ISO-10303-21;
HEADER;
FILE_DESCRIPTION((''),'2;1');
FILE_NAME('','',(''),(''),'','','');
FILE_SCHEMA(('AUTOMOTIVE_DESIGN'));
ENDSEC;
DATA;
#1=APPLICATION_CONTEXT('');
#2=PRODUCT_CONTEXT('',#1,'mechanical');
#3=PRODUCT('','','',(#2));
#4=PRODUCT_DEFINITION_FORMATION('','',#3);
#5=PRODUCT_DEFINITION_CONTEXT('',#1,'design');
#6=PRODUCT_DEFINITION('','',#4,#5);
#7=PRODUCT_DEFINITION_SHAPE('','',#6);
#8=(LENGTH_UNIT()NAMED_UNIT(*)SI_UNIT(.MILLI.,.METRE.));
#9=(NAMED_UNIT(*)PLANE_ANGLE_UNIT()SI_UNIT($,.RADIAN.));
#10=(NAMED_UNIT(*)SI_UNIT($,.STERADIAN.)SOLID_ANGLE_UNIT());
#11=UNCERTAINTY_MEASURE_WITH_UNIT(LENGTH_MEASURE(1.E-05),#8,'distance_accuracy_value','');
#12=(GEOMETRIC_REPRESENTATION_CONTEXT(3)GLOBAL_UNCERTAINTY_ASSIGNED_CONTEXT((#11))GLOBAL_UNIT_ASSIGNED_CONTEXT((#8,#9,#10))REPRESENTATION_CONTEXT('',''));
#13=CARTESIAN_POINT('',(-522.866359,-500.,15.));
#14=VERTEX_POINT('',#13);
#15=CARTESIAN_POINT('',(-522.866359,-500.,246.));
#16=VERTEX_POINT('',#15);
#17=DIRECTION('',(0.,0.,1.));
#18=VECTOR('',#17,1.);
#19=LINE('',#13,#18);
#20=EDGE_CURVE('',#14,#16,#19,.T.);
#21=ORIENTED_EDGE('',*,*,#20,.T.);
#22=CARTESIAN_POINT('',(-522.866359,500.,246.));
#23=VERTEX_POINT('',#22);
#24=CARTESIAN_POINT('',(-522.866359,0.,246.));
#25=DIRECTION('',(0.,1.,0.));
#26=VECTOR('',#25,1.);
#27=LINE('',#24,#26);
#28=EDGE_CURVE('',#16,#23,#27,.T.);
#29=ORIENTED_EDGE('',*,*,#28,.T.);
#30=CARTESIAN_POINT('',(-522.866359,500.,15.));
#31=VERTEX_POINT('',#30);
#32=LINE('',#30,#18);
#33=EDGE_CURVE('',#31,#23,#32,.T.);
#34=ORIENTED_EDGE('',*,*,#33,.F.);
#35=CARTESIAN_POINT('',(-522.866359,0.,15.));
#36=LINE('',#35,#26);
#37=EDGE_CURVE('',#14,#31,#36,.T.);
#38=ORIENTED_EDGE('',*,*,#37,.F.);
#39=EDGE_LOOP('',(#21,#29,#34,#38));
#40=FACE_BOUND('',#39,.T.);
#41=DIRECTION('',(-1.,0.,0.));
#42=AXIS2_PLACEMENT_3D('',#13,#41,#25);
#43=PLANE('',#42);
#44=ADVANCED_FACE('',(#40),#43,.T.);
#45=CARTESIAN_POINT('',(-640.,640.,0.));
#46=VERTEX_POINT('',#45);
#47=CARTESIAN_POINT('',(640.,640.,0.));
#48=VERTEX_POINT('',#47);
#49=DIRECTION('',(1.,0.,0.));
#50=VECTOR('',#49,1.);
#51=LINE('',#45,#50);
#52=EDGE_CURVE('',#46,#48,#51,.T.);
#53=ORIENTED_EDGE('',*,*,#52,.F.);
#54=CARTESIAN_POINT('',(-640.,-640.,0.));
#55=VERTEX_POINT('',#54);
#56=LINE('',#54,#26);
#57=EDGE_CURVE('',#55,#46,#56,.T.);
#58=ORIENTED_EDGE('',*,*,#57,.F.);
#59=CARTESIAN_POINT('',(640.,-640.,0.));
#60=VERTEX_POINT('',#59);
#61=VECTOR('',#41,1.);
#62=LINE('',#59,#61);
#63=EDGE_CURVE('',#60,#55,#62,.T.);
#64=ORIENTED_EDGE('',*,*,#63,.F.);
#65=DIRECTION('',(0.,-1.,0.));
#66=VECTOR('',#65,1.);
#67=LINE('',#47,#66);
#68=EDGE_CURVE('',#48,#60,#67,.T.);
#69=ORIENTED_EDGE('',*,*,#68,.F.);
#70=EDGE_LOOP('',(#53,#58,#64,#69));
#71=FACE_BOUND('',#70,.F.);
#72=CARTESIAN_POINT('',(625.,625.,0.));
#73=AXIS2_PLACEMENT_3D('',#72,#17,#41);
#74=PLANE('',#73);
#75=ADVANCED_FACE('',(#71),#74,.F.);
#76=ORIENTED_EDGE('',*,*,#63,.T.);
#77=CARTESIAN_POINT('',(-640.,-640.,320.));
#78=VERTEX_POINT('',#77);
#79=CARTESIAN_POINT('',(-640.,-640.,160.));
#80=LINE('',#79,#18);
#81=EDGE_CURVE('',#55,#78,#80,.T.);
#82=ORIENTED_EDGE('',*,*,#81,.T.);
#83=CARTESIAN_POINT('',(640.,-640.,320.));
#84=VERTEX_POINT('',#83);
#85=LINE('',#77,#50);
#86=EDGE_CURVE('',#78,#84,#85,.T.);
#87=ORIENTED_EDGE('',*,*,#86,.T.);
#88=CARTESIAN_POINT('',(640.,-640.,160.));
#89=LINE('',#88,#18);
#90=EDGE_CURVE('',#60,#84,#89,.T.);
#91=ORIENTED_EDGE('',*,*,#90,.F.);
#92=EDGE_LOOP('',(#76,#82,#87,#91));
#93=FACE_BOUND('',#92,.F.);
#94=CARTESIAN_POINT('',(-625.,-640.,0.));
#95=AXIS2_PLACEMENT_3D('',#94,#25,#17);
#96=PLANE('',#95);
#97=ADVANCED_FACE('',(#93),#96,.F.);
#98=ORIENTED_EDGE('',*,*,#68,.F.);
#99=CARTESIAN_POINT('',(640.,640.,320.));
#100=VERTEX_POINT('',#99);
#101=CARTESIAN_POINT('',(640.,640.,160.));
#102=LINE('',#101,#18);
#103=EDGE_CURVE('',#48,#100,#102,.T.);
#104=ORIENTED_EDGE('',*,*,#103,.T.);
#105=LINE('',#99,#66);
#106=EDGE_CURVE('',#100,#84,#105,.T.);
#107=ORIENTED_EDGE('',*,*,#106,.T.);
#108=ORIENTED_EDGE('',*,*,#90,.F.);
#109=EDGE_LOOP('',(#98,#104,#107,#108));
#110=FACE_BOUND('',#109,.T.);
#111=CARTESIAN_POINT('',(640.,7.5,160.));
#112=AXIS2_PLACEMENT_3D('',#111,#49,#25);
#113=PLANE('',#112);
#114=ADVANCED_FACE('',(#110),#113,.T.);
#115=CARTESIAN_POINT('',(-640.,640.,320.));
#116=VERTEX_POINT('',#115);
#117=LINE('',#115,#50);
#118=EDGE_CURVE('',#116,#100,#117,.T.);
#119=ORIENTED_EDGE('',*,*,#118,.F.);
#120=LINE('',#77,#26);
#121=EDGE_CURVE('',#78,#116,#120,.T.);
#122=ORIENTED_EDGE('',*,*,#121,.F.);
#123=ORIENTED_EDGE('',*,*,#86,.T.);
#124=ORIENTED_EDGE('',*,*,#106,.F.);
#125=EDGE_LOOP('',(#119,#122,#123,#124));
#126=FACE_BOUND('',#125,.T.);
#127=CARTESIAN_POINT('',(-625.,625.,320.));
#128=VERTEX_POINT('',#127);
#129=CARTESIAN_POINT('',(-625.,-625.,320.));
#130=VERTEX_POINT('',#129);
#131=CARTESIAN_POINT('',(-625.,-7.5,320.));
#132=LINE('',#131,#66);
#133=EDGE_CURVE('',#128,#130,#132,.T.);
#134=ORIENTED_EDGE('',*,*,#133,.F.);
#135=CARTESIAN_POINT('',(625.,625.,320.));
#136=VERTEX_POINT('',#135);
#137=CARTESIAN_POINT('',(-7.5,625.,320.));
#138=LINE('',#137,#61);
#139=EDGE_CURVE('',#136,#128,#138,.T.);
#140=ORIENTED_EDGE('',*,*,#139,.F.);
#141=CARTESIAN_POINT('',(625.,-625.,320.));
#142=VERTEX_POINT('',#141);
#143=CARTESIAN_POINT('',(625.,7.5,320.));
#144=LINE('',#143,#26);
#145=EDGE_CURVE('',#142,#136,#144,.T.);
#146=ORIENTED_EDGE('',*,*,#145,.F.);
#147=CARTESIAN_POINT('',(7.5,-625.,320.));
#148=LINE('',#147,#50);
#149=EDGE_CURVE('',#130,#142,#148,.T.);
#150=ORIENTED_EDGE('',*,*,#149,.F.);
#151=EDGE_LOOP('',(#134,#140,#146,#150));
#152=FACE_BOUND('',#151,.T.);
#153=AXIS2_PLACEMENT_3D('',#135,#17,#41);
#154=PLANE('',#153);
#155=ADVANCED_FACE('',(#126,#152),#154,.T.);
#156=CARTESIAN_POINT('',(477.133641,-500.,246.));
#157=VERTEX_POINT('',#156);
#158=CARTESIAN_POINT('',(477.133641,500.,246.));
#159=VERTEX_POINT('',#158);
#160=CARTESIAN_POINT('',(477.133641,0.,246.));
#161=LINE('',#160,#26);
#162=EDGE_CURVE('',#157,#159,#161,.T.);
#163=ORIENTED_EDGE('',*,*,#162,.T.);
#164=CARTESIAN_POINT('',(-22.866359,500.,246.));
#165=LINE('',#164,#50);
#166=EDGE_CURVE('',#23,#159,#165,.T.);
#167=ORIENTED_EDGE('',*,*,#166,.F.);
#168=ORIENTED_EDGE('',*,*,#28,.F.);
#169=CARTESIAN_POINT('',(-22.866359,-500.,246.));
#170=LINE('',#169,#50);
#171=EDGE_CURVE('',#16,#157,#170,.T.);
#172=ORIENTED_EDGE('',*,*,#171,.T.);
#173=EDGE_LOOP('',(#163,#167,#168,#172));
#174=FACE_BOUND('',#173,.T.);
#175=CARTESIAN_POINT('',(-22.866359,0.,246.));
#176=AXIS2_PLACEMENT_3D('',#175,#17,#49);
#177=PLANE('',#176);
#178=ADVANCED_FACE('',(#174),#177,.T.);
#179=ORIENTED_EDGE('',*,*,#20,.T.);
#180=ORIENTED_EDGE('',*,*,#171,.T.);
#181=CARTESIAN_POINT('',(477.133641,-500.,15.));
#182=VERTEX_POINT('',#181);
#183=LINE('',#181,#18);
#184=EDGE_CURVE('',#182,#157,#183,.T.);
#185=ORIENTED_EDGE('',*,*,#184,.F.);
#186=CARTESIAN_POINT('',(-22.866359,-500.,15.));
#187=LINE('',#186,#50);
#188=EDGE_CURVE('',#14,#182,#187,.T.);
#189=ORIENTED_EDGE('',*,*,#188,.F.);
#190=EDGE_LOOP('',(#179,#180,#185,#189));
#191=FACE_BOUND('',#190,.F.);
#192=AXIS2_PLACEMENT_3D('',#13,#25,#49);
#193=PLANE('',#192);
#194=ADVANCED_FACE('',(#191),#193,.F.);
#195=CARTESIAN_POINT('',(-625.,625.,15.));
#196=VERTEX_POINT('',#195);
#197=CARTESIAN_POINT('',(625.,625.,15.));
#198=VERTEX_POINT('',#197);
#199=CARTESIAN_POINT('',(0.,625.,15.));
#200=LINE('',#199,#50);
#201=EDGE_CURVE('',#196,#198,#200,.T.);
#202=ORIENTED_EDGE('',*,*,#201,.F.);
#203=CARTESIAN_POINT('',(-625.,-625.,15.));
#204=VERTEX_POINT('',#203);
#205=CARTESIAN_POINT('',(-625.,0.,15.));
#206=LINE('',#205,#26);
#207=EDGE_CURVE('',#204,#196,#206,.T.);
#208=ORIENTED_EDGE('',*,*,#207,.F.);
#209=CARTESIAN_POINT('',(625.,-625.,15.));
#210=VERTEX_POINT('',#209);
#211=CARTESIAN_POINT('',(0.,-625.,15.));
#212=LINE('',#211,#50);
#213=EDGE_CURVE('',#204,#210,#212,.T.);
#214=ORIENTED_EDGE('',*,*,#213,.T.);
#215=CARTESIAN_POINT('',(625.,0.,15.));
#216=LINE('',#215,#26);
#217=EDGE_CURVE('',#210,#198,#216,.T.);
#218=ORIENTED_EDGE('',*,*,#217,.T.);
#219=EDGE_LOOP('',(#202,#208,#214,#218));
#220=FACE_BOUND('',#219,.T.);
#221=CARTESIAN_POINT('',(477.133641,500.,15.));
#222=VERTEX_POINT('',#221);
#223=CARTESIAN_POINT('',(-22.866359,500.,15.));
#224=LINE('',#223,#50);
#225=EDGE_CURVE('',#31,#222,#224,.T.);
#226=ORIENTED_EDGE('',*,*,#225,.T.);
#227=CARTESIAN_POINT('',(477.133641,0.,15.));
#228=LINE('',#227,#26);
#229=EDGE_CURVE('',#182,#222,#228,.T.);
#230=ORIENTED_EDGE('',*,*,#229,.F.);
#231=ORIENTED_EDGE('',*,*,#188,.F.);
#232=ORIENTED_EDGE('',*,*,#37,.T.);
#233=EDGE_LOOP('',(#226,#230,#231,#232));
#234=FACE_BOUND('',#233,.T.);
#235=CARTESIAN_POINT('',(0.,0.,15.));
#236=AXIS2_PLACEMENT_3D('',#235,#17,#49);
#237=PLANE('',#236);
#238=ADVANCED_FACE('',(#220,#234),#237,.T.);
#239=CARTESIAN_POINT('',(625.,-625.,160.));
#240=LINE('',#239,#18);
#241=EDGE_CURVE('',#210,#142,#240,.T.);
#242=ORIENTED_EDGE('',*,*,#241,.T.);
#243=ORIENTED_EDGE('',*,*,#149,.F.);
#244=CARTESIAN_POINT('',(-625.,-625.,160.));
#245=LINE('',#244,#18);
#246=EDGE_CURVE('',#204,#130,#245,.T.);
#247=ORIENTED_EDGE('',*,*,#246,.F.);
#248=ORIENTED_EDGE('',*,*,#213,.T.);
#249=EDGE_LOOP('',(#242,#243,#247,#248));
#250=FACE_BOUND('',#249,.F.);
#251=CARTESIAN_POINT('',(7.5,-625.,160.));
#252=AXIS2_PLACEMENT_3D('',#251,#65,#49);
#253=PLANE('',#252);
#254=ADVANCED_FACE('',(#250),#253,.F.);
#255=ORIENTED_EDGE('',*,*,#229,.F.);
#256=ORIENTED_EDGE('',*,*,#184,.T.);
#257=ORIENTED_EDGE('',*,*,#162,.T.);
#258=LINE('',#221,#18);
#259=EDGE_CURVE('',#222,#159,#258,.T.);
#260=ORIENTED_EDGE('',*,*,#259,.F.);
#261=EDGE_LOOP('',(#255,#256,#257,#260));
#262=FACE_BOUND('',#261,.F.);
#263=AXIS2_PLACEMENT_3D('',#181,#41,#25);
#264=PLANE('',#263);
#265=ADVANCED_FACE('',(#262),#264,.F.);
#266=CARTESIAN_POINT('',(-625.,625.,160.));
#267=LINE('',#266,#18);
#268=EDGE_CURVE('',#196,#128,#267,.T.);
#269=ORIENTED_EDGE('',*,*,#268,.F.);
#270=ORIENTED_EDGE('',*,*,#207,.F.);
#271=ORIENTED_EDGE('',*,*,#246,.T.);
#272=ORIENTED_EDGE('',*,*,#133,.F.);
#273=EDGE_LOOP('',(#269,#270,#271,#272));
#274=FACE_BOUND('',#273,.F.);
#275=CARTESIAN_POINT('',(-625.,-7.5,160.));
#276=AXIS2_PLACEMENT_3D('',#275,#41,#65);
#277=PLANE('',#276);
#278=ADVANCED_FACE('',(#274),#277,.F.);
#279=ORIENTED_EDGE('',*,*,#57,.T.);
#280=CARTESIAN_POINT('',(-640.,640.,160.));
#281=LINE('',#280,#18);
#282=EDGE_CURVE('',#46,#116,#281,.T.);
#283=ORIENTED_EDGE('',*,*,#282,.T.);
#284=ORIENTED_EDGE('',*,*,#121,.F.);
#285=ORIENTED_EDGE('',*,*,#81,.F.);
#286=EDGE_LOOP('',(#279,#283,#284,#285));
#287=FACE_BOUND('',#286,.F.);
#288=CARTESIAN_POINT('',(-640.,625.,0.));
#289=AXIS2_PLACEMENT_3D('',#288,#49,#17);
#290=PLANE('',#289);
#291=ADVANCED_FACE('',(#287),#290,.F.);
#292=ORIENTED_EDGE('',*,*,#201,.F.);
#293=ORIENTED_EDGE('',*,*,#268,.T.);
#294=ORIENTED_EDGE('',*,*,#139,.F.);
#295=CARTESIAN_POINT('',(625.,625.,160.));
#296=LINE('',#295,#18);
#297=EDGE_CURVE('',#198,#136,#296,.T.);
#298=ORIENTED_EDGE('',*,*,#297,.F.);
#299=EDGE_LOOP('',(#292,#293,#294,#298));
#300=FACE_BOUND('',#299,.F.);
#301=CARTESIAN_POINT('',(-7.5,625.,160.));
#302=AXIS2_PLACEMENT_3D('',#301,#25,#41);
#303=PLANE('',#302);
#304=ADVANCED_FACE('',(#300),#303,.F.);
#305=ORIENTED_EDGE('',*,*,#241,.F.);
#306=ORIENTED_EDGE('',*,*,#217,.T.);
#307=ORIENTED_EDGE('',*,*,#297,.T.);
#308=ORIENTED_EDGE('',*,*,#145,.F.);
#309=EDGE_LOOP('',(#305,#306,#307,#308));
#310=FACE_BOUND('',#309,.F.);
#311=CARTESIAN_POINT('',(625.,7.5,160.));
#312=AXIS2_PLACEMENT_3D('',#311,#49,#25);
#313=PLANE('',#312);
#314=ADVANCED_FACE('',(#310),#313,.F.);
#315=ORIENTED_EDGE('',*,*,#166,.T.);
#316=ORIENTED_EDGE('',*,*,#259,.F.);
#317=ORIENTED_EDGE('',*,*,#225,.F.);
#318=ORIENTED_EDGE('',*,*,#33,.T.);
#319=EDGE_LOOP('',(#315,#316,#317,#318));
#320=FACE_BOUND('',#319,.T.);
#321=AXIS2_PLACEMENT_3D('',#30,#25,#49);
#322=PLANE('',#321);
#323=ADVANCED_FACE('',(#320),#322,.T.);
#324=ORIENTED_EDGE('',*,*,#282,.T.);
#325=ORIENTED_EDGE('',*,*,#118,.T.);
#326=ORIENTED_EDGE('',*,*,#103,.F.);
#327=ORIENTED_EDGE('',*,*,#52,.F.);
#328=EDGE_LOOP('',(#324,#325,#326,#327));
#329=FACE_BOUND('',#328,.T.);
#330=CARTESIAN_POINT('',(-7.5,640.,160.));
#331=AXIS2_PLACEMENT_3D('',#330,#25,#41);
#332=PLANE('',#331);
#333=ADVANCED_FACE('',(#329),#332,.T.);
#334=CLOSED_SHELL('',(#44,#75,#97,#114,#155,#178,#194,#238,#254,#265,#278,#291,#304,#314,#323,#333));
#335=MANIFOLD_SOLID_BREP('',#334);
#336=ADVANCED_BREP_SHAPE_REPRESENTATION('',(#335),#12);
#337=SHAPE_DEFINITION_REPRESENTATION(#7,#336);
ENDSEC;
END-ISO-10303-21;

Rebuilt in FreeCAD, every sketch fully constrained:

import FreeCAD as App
import Part
import Sketcher
from FreeCAD import Vector
Q = App.Units.Quantity


def add_polygon(sketch, points):
    """Adds a closed chain of lines whose ends are joined by coincident constraints."""
    first, n = sketch.GeometryCount, len(points)
    for a, b in zip(points, points[1:] + points[:1]):
        sketch.addGeometry(Part.LineSegment(App.Vector(*a, 0), App.Vector(*b, 0)), False)
    for i in range(n):
        sketch.addConstraint(Sketcher.Constraint("Coincident", first + i, 2, first + (i + 1) % n, 1))

doc = App.newDocument("Part")
params = doc.addObject("Spreadsheet::Sheet", "Params")
for row, (alias, value) in enumerate([
    ("sketch1_width", "1250 mm"),
    ("pad1_length", "15 mm"),
    ("sketch2_width", "1265 mm"),
    ("sketch2_height", "320 mm"),
    ("pad2_length", "15 mm"),
    ("sketch3_width", "1265 mm"),
    ("sketch3_height", "320 mm"),
    ("pad3_length", "15 mm"),
    ("sketch4_width", "1265 mm"),
    ("sketch4_height", "320 mm"),
    ("pad4_length", "15 mm"),
    ("sketch5_width", "1265 mm"),
    ("sketch5_height", "320 mm"),
    ("pad5_length", "15 mm"),
    ("sketch6_width", "1000 mm"),
    ("pad6_length", "231 mm"),
], start=1):
    params.set(f"A{row}", alias)
    params.set(f"B{row}", "=" + value)
    params.setAlias(f"B{row}", alias)

body = doc.addObject("PartDesign::Body", "Body")

sketch1 = body.newObject("Sketcher::SketchObject", "Sketch")
sketch1.AttachmentSupport = (doc.getObject("XY_Plane"), [""])
sketch1.MapMode = "FlatFace"
add_polygon(sketch1, [(-625, 625), (-625, -625), (625, -625), (625, 625)])
sketch1.addConstraint([
    Sketcher.Constraint("Vertical", 0),
    Sketcher.Constraint("Horizontal", 1),
    Sketcher.Constraint("Vertical", 2),
    Sketcher.Constraint("Horizontal", 3),
    Sketcher.Constraint("Symmetric", 0, 2, 2, 2, -1, 1),
    Sketcher.Constraint("Equal", 3, 0),
    Sketcher.Constraint("DistanceX", 1, 1, 1, 2, Q("1250 mm")),
])
sketch1.setExpression("Constraints[10]", "Params.sketch1_width")
pad1 = body.newObject("PartDesign::Pad", "Pad")
pad1.Profile = sketch1
pad1.setExpression("Length", "Params.pad1_length")

sketch2 = body.newObject("Sketcher::SketchObject", "Sketch001")
sketch2.AttachmentSupport = (doc.getObject("XZ_Plane"), [""])
sketch2.MapMode = "FlatFace"
sketch2.AttachmentOffset = App.Placement(Vector(0, 0, 625), App.Rotation())
add_polygon(sketch2, [(-625, 320), (-625, 0), (640, 0), (640, 320)])
sketch2.addConstraint([
    Sketcher.Constraint("Vertical", 0),
    Sketcher.Constraint("Horizontal", 1),
    Sketcher.Constraint("Vertical", 2),
    Sketcher.Constraint("Horizontal", 3),
    Sketcher.Constraint("PointOnObject", 0, 2, -1),
    Sketcher.Constraint("DistanceX", 1, 1, 1, 2, Q("1265 mm")),
    Sketcher.Constraint("DistanceY", 0, 2, 0, 1, Q("320 mm")),
    Sketcher.Constraint("DistanceX", 0, 2, -1, 1, Q("625 mm")),
])
sketch2.setExpression("Constraints[9]", "Params.sketch2_width")
sketch2.setExpression("Constraints[10]", "Params.sketch2_height")
pad2 = body.newObject("PartDesign::Pad", "Pad001")
pad2.Profile = sketch2
pad2.setExpression("Length", "Params.pad2_length")

sketch3 = body.newObject("Sketcher::SketchObject", "Sketch002")
sketch3.AttachmentSupport = (doc.getObject("YZ_Plane"), [""])
sketch3.MapMode = "FlatFace"
sketch3.AttachmentOffset = App.Placement(Vector(0, 0, 625), App.Rotation())
add_polygon(sketch3, [(-625, 320), (-625, 0), (640, 0), (640, 320)])
sketch3.addConstraint([
    Sketcher.Constraint("Vertical", 0),
    Sketcher.Constraint("Horizontal", 1),
    Sketcher.Constraint("Vertical", 2),
    Sketcher.Constraint("Horizontal", 3),
    Sketcher.Constraint("PointOnObject", 0, 2, -1),
    Sketcher.Constraint("DistanceX", 1, 1, 1, 2, Q("1265 mm")),
    Sketcher.Constraint("DistanceY", 0, 2, 0, 1, Q("320 mm")),
    Sketcher.Constraint("DistanceX", 0, 2, -1, 1, Q("625 mm")),
])
sketch3.setExpression("Constraints[9]", "Params.sketch3_width")
sketch3.setExpression("Constraints[10]", "Params.sketch3_height")
pad3 = body.newObject("PartDesign::Pad", "Pad002")
pad3.Profile = sketch3
pad3.setExpression("Length", "Params.pad3_length")

sketch4 = body.newObject("Sketcher::SketchObject", "Sketch003")
sketch4.AttachmentSupport = (doc.getObject("YZ_Plane"), [""])
sketch4.MapMode = "FlatFace"
sketch4.AttachmentOffset = App.Placement(Vector(0, 0, -625), App.Rotation())
add_polygon(sketch4, [(625, 320), (625, 0), (-640, 0), (-640, 320)])
sketch4.addConstraint([
    Sketcher.Constraint("Vertical", 0),
    Sketcher.Constraint("Horizontal", 1),
    Sketcher.Constraint("Vertical", 2),
    Sketcher.Constraint("Horizontal", 3),
    Sketcher.Constraint("PointOnObject", 0, 2, -1),
    Sketcher.Constraint("DistanceX", 1, 2, 1, 1, Q("1265 mm")),
    Sketcher.Constraint("DistanceY", 0, 2, 0, 1, Q("320 mm")),
    Sketcher.Constraint("DistanceX", -1, 1, 0, 2, Q("625 mm")),
])
sketch4.setExpression("Constraints[9]", "Params.sketch4_width")
sketch4.setExpression("Constraints[10]", "Params.sketch4_height")
pad4 = body.newObject("PartDesign::Pad", "Pad003")
pad4.Profile = sketch4
pad4.setExpression("Length", "Params.pad4_length")
pad4.Reversed = True

sketch5 = body.newObject("Sketcher::SketchObject", "Sketch004")
sketch5.AttachmentSupport = (doc.getObject("XZ_Plane"), [""])
sketch5.MapMode = "FlatFace"
sketch5.AttachmentOffset = App.Placement(Vector(0, 0, -625), App.Rotation())
add_polygon(sketch5, [(625, 320), (625, 0), (-640, 0), (-640, 320)])
sketch5.addConstraint([
    Sketcher.Constraint("Vertical", 0),
    Sketcher.Constraint("Horizontal", 1),
    Sketcher.Constraint("Vertical", 2),
    Sketcher.Constraint("Horizontal", 3),
    Sketcher.Constraint("PointOnObject", 0, 2, -1),
    Sketcher.Constraint("DistanceX", 1, 2, 1, 1, Q("1265 mm")),
    Sketcher.Constraint("DistanceY", 0, 2, 0, 1, Q("320 mm")),
    Sketcher.Constraint("DistanceX", -1, 1, 0, 2, Q("625 mm")),
])
sketch5.setExpression("Constraints[9]", "Params.sketch5_width")
sketch5.setExpression("Constraints[10]", "Params.sketch5_height")
pad5 = body.newObject("PartDesign::Pad", "Pad004")
pad5.Profile = sketch5
pad5.setExpression("Length", "Params.pad5_length")
pad5.Reversed = True

sketch6 = body.newObject("Sketcher::SketchObject", "Sketch005")
sketch6.AttachmentSupport = (doc.getObject("XY_Plane"), [""])
sketch6.MapMode = "FlatFace"
sketch6.AttachmentOffset = App.Placement(Vector(0, 0, 15), App.Rotation())
add_polygon(sketch6, [(-523, 500), (-523, -500), (477, -500), (477, 500)])
sketch6.addConstraint([
    Sketcher.Constraint("Vertical", 0),
    Sketcher.Constraint("Horizontal", 1),
    Sketcher.Constraint("Vertical", 2),
    Sketcher.Constraint("Horizontal", 3),
    Sketcher.Constraint("Equal", 3, 0),
    Sketcher.Constraint("DistanceX", 1, 1, 1, 2, Q("1000 mm")),
    Sketcher.Constraint("DistanceY", 0, 2, -1, 1, Q("500 mm")),
    Sketcher.Constraint("DistanceX", 0, 2, -1, 1, Q("522.866359 mm")),
])
sketch6.setExpression("Constraints[9]", "Params.sketch6_width")
pad6 = body.newObject("PartDesign::Pad", "Pad005")
pad6.Profile = sketch6
pad6.setExpression("Length", "Params.pad6_length")

doc.recompute()
